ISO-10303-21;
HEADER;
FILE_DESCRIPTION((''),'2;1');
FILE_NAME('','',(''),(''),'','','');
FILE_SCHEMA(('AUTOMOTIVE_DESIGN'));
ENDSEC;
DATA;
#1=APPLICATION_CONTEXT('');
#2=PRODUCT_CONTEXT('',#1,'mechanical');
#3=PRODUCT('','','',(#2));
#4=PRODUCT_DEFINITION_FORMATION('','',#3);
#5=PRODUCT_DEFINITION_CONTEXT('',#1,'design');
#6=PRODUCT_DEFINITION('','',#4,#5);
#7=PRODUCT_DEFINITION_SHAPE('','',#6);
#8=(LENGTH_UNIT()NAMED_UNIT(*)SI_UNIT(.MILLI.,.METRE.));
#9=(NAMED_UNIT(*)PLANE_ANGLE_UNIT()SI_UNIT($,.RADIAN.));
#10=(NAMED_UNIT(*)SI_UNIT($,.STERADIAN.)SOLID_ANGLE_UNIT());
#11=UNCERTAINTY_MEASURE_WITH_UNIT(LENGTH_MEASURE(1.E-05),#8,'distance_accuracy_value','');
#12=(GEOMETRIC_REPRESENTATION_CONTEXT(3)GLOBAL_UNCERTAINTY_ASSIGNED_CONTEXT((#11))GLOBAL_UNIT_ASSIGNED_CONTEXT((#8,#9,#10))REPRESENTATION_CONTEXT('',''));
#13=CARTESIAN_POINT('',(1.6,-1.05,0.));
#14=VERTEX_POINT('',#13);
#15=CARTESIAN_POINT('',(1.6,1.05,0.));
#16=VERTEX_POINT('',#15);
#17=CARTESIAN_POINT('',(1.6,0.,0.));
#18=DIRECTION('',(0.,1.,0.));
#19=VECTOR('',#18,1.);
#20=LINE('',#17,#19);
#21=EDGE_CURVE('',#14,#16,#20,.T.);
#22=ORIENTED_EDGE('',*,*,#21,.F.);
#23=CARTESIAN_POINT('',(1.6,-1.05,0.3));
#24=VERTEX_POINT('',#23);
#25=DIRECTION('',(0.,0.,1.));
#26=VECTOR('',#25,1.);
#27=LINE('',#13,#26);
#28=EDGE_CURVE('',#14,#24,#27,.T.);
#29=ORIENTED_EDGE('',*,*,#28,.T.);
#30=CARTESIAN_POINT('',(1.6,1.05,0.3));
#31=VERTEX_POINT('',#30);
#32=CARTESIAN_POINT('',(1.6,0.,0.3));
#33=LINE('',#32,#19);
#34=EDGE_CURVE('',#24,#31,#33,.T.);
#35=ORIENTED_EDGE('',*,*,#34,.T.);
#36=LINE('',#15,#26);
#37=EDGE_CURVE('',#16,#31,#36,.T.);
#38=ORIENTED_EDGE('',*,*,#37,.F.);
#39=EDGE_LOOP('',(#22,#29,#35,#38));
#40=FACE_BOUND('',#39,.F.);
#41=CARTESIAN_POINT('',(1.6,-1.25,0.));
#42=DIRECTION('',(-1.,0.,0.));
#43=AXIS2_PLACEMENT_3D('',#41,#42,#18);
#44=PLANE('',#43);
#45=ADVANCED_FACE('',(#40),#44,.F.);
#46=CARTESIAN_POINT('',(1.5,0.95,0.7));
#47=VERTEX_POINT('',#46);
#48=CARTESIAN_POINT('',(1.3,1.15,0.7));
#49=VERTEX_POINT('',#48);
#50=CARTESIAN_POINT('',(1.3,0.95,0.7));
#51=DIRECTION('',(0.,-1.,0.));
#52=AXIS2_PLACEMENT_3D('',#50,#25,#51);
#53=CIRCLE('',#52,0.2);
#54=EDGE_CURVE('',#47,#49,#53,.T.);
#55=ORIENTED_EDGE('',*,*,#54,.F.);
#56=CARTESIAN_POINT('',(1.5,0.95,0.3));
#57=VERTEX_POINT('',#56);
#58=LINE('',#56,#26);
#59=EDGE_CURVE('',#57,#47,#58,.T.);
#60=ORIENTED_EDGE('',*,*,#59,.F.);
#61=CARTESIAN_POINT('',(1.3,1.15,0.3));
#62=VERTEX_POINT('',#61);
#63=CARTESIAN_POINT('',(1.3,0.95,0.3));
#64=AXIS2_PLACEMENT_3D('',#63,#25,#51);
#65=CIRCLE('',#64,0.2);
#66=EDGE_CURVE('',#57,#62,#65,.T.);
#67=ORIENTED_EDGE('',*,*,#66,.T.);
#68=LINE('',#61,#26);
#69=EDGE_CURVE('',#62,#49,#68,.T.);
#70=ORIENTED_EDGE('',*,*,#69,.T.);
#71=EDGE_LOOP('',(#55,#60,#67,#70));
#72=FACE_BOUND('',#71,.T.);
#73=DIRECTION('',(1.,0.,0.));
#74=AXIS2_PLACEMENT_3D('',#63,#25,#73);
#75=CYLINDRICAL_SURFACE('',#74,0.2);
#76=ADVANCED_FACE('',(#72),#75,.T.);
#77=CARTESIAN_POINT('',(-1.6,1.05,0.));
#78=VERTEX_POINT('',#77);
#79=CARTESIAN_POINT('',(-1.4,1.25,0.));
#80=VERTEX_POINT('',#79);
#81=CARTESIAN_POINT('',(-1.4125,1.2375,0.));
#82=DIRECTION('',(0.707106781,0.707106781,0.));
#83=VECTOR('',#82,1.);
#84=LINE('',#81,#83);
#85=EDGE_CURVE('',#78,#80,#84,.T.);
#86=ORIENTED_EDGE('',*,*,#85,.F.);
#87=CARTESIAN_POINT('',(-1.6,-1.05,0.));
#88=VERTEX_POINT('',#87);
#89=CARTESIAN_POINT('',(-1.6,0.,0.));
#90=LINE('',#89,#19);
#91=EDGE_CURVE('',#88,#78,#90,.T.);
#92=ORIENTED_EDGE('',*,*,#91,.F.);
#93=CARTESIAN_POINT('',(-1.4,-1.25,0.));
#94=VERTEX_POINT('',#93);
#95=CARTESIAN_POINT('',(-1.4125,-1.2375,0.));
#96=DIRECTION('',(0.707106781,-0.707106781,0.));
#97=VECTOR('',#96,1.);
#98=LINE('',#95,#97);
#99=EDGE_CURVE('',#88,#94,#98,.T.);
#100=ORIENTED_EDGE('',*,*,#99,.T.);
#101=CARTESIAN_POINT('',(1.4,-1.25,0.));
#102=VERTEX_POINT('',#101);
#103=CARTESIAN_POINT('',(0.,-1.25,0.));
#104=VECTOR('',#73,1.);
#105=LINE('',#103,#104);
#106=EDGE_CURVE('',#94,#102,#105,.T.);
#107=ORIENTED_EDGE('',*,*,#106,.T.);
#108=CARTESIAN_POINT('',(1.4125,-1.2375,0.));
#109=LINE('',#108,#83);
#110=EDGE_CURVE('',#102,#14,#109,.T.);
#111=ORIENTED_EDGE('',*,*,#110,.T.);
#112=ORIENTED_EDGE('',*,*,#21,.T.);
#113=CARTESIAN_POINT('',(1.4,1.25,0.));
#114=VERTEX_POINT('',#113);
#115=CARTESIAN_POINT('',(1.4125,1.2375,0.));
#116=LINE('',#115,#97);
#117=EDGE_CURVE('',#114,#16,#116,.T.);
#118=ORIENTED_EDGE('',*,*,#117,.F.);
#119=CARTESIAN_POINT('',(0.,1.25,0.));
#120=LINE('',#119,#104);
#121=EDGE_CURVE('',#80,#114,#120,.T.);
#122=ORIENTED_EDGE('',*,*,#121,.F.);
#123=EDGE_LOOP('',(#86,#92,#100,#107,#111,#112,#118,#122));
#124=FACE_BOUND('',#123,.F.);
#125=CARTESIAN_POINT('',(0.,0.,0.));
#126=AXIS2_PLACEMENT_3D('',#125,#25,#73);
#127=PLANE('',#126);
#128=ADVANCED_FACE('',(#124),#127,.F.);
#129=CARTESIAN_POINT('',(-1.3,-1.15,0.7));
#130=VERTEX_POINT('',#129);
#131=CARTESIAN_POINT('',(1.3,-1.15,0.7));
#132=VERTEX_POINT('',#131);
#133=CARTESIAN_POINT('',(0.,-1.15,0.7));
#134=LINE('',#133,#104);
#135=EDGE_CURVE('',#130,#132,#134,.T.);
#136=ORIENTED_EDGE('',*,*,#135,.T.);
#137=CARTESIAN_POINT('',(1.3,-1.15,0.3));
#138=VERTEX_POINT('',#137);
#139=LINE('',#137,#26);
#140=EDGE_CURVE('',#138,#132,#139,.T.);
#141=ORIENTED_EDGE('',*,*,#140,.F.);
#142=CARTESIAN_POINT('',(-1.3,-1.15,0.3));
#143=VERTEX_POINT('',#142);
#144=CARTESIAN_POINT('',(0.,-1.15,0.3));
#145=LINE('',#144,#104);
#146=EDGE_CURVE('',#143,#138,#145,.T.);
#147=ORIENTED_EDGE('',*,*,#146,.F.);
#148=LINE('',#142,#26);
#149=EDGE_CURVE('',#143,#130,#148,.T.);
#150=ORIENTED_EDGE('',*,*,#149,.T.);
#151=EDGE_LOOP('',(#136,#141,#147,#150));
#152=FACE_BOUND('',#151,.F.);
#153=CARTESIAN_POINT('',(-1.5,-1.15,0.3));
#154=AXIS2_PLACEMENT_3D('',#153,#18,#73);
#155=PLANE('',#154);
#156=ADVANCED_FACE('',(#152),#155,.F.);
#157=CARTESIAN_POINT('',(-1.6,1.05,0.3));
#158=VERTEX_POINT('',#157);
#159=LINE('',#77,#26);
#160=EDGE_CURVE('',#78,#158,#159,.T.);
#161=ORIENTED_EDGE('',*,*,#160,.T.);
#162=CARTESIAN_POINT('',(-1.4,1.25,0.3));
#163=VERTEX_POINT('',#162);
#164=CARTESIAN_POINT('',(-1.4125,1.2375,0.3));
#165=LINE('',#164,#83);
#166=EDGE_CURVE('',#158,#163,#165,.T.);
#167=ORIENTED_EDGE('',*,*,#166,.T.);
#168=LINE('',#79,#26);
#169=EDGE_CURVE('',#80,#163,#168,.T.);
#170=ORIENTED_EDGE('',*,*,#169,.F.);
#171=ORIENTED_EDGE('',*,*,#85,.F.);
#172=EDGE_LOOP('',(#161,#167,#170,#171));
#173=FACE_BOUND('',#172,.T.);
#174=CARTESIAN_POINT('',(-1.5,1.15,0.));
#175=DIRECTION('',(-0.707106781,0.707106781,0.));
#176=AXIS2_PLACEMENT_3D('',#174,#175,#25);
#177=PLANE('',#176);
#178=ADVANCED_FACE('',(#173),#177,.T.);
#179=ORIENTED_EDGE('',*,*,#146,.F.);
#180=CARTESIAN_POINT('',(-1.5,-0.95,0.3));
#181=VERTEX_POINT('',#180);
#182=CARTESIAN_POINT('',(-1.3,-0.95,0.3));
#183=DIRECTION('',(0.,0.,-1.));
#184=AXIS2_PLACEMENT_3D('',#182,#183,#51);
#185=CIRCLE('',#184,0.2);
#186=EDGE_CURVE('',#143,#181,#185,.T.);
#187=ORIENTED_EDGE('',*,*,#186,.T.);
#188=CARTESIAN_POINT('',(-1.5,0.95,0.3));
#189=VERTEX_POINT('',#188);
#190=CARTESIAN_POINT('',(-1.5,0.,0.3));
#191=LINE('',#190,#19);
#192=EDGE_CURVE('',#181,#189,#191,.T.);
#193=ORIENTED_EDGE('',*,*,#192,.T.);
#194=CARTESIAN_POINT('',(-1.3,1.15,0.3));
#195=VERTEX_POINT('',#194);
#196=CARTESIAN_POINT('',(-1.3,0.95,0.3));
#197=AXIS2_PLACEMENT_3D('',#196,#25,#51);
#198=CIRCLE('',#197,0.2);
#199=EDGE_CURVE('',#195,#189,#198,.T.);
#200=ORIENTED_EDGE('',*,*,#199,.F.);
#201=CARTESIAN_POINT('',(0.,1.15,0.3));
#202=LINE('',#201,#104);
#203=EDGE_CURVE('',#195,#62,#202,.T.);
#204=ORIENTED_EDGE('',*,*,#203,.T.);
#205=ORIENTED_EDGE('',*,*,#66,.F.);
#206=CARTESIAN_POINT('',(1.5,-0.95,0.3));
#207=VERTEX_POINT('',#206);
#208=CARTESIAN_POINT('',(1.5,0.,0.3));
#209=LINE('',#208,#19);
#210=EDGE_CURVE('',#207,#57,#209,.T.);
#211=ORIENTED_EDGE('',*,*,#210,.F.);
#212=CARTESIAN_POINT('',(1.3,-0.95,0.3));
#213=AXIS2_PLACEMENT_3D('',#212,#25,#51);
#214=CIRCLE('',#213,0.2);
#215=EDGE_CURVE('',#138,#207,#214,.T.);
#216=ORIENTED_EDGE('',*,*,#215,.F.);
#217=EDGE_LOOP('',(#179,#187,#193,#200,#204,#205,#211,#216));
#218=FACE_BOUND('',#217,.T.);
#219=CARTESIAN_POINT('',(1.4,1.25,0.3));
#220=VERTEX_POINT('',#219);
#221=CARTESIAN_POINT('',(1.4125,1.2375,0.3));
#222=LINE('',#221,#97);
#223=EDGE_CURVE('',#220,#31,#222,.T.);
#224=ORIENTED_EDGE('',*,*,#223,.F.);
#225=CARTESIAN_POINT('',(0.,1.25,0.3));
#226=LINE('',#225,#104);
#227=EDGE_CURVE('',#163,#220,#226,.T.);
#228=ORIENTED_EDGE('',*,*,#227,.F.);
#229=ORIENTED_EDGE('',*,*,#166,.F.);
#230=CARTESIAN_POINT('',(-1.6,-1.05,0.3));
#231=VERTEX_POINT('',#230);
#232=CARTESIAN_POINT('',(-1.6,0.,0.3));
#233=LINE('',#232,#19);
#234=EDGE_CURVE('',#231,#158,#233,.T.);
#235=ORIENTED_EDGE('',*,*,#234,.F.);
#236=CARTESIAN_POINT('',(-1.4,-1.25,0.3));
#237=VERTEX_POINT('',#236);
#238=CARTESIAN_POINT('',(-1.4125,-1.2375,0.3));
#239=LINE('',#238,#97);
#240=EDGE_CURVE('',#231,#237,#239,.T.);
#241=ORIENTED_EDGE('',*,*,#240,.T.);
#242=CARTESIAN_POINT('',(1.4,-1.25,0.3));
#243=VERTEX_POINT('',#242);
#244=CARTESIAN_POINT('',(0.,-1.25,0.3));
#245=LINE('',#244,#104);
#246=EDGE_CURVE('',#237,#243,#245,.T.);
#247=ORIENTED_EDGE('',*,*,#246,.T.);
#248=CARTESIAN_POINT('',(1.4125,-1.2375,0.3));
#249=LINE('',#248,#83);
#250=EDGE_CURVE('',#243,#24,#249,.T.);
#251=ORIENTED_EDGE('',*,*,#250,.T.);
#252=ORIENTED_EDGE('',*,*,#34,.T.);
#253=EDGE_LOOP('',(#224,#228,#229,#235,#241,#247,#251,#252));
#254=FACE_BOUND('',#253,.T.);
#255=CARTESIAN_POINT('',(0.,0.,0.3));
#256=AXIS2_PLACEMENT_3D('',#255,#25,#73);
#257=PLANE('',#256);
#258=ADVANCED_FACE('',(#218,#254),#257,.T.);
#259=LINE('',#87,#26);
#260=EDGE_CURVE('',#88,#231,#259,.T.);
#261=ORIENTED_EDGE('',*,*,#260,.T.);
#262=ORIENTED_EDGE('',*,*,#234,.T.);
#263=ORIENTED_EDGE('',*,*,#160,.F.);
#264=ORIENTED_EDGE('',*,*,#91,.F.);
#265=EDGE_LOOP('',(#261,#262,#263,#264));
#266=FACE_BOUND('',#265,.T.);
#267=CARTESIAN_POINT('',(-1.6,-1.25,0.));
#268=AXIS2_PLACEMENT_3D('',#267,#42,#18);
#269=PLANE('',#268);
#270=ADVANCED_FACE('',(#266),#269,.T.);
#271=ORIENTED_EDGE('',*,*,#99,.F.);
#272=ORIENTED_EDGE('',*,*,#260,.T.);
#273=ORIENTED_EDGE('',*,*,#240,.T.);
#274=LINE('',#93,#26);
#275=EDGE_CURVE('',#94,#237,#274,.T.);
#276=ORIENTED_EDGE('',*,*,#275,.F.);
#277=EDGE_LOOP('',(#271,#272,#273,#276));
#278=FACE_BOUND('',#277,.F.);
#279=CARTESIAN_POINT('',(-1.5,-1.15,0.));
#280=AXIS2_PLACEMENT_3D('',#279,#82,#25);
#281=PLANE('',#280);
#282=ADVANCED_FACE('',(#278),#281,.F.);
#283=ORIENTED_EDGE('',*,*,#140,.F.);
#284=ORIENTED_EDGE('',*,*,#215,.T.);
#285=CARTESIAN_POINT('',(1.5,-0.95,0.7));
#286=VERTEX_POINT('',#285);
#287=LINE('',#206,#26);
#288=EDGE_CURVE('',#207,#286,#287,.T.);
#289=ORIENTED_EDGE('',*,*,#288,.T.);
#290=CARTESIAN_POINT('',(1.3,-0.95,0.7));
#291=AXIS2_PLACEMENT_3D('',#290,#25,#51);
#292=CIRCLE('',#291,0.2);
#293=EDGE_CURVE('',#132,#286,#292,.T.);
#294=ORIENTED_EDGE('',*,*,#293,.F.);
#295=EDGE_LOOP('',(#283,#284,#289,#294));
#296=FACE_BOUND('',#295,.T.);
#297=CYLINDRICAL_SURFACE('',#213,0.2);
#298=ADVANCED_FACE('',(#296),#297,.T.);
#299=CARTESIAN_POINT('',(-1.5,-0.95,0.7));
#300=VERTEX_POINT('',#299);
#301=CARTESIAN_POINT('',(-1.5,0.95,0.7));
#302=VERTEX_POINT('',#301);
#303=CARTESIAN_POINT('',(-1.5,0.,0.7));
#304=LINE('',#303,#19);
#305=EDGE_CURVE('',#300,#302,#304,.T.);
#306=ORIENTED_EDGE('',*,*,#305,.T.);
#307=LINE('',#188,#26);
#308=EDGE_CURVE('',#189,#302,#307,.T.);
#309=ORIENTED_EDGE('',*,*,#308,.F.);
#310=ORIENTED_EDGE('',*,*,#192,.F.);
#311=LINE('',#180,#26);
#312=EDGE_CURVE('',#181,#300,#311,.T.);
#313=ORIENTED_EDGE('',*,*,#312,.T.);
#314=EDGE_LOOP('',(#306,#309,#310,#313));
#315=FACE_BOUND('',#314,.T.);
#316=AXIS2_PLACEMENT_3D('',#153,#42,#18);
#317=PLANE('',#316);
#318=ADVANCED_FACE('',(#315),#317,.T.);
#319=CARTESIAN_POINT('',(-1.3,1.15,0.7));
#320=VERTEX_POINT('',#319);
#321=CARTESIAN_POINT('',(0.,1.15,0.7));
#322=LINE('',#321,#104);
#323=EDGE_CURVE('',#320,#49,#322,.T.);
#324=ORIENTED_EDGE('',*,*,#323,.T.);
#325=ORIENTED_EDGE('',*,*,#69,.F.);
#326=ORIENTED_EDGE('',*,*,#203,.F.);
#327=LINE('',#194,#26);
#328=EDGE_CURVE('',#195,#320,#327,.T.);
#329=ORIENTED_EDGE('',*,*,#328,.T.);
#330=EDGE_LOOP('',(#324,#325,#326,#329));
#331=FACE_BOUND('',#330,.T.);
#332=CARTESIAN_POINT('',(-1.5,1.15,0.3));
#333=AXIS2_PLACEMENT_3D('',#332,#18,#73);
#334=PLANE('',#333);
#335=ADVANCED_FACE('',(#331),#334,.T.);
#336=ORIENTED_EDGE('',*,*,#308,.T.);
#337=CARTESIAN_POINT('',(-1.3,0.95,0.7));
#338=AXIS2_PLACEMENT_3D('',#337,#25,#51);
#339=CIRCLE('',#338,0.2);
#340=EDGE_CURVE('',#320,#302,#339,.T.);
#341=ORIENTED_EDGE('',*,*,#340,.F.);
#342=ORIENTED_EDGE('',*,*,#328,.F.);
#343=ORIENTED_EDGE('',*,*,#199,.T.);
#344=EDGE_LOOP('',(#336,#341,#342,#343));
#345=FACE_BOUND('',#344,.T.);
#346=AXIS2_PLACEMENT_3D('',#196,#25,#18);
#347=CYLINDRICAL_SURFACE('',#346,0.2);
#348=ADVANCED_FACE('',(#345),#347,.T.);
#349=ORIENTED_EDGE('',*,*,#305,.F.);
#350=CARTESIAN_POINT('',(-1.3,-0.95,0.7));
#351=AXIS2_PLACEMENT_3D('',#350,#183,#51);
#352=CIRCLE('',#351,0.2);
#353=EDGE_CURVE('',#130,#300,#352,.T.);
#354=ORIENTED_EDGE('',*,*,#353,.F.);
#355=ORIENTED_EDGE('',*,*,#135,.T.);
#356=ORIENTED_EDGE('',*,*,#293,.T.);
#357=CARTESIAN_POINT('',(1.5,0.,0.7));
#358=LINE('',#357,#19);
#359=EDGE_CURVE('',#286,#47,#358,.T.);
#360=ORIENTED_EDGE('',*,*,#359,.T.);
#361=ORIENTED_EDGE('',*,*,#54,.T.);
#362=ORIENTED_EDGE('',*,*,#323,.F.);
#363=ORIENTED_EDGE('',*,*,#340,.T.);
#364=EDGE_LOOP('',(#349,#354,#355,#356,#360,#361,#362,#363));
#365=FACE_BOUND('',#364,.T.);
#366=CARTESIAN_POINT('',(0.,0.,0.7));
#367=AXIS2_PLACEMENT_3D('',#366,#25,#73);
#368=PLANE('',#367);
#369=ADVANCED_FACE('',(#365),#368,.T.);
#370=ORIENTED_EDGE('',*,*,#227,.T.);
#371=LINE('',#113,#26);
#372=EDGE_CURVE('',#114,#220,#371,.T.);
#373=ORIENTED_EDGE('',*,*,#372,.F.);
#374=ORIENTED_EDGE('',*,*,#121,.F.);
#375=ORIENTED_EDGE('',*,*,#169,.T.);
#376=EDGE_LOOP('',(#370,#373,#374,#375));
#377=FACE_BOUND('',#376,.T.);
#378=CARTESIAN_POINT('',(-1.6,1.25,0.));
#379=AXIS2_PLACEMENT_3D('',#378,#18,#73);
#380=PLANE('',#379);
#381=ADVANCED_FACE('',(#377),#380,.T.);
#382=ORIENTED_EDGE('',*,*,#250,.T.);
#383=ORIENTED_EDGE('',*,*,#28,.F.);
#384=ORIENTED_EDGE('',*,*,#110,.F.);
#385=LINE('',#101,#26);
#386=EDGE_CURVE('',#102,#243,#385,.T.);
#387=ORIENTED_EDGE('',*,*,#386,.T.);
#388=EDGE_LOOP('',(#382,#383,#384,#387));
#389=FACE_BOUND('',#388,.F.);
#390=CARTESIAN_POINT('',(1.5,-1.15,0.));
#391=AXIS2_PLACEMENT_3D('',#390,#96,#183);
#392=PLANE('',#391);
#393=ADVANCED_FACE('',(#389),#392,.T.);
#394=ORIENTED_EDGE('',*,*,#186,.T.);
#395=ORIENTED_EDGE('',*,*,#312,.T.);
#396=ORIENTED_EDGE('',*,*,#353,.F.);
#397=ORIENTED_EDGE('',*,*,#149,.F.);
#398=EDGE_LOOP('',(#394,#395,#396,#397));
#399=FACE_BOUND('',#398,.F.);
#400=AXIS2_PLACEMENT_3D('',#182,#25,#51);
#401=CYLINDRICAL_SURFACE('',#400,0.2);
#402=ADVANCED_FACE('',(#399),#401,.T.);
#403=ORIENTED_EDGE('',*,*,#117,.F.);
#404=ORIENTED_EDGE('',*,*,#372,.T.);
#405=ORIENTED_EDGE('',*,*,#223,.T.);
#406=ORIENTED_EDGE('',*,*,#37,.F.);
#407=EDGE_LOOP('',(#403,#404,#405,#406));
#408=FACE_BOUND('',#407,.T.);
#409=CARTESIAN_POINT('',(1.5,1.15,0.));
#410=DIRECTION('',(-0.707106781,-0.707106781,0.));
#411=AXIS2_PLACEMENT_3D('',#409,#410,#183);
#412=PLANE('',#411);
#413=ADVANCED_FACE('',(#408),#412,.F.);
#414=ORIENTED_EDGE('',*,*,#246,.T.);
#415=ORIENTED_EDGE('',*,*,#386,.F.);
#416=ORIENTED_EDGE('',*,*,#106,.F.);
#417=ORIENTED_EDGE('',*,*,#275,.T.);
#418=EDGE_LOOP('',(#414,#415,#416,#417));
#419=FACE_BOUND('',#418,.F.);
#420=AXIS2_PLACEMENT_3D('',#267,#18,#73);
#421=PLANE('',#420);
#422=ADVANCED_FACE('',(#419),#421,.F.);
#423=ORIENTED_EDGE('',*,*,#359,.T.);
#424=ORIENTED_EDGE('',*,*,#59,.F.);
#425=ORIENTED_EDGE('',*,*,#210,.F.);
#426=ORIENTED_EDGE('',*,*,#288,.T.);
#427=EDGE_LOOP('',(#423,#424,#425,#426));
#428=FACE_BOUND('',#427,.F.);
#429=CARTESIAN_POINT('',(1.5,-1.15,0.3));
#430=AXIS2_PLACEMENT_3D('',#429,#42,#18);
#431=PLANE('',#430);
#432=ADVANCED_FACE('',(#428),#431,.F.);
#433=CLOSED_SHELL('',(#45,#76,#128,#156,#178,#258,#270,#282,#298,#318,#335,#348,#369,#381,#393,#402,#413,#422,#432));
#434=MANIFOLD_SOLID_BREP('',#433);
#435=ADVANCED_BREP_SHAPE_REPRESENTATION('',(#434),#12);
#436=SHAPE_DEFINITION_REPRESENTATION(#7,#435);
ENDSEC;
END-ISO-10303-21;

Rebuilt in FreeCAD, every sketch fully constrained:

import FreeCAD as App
import Part
import Sketcher

V = App.Vector
Q = App.Units.Quantity


def edges_at(feature, points):
    """Names of the edges that pass closest to the given points."""
    edges = feature.Shape.Edges
    near = lambda p: min(range(len(edges)), key=lambda i: edges[i].distToShape(Part.Vertex(*p))[0])
    return sorted({f"Edge{near(p) + 1}" for p in points})


def add_polygon(sketch, points):
    """Adds a closed chain of lines whose ends are joined by coincident constraints."""
    first, n = sketch.GeometryCount, len(points)
    for a, b in zip(points, points[1:] + points[:1]):
        sketch.addGeometry(Part.LineSegment(App.Vector(*a, 0), App.Vector(*b, 0)), False)
    for i in range(n):
        sketch.addConstraint(Sketcher.Constraint("Coincident", first + i, 2, first + (i + 1) % n, 1))

doc = App.newDocument("Part")
params = doc.addObject("Spreadsheet::Sheet", "Params")
for row, (alias, value) in enumerate([
    ("sketch1_width", "3.2 mm"),
    ("sketch1_height", "2.5 mm"),
    ("pad1_length", "0.3 mm"),
    ("sketch2_width", "3 mm"),
    ("sketch2_height", "2.3 mm"),
    ("pad2_length", "0.4 mm"),
    ("fillet_radius", "0.2 mm"),
    ("chamfer_size", "0.2 mm"),
], start=1):
    params.set(f"A{row}", alias)
    params.set(f"B{row}", "=" + value)
    params.setAlias(f"B{row}", alias)

body = doc.addObject("PartDesign::Body", "Body")

# Sketch on XY plane
sketch1 = body.newObject("Sketcher::SketchObject", "Sketch")
sketch1.AttachmentSupport = (doc.getObject("XY_Plane"), [""])
sketch1.MapMode = "FlatFace"
add_polygon(sketch1, [(-1.6, 1.25), (-1.6, -1.25), (1.6, -1.25), (1.6, 1.25)])  # lines 0-3
sketch1.addConstraint(Sketcher.Constraint("Vertical", 0))
sketch1.addConstraint(Sketcher.Constraint("Horizontal", 1))
sketch1.addConstraint(Sketcher.Constraint("Vertical", 2))
sketch1.addConstraint(Sketcher.Constraint("Horizontal", 3))
sketch1.addConstraint(Sketcher.Constraint("Symmetric", 0, 2, 2, 2, -1, 1))
sketch1.addConstraint(Sketcher.Constraint("DistanceX", 1, 1, 1, 2, Q("3.2 mm")))
sketch1.addConstraint(Sketcher.Constraint("DistanceY", 0, 2, 0, 1, Q("2.5 mm")))
sketch1.setExpression("Constraints[9]", "Params.sketch1_width")
sketch1.setExpression("Constraints[10]", "Params.sketch1_height")
pad1 = body.newObject("PartDesign::Pad", "Pad")
pad1.Profile = sketch1
pad1.setExpression("Length", "Params.pad1_length")

# Sketch on XY plane
sketch2 = body.newObject("Sketcher::SketchObject", "Sketch001")
sketch2.AttachmentSupport = (doc.getObject("XY_Plane"), [""])
sketch2.MapMode = "FlatFace"
sketch2.AttachmentOffset = App.Placement(V(0, 0, 0.3), App.Rotation())
add_polygon(sketch2, [(-1.5, 1.15), (-1.5, -1.15), (1.5, -1.15), (1.5, 1.15)])  # lines 0-3
sketch2.addConstraint(Sketcher.Constraint("Vertical", 0))
sketch2.addConstraint(Sketcher.Constraint("Horizontal", 1))
sketch2.addConstraint(Sketcher.Constraint("Vertical", 2))
sketch2.addConstraint(Sketcher.Constraint("Horizontal", 3))
sketch2.addConstraint(Sketcher.Constraint("Symmetric", 0, 2, 2, 2, -1, 1))
sketch2.addConstraint(Sketcher.Constraint("DistanceX", 1, 1, 1, 2, Q("3 mm")))
sketch2.addConstraint(Sketcher.Constraint("DistanceY", 0, 2, 0, 1, Q("2.3 mm")))
sketch2.setExpression("Constraints[9]", "Params.sketch2_width")
sketch2.setExpression("Constraints[10]", "Params.sketch2_height")
pad2 = body.newObject("PartDesign::Pad", "Pad001")
pad2.Profile = sketch2
pad2.setExpression("Length", "Params.pad2_length")
doc.recompute()

fillet = body.newObject("PartDesign::Fillet", "Fillet")
fillet.Base = (pad2, edges_at(pad2, [
    (1.5, 1.15, 0.5),
    (1.5, -1.15, 0.5),
    (-1.5, -1.15, 0.5),
    (-1.5, 1.15, 0.5),
]))
fillet.setExpression("Radius", "Params.fillet_radius")
doc.recompute()

chamfer = body.newObject("PartDesign::Chamfer", "Chamfer")
chamfer.Base = (fillet, edges_at(fillet, [
    (-1.6, -1.25, 0.15),
    (-1.6, 1.25, 0.15),
    (1.6, -1.25, 0.15),
    (1.6, 1.25, 0.15),
]))
chamfer.setExpression("Size", "Params.chamfer_size")

doc.recompute()
